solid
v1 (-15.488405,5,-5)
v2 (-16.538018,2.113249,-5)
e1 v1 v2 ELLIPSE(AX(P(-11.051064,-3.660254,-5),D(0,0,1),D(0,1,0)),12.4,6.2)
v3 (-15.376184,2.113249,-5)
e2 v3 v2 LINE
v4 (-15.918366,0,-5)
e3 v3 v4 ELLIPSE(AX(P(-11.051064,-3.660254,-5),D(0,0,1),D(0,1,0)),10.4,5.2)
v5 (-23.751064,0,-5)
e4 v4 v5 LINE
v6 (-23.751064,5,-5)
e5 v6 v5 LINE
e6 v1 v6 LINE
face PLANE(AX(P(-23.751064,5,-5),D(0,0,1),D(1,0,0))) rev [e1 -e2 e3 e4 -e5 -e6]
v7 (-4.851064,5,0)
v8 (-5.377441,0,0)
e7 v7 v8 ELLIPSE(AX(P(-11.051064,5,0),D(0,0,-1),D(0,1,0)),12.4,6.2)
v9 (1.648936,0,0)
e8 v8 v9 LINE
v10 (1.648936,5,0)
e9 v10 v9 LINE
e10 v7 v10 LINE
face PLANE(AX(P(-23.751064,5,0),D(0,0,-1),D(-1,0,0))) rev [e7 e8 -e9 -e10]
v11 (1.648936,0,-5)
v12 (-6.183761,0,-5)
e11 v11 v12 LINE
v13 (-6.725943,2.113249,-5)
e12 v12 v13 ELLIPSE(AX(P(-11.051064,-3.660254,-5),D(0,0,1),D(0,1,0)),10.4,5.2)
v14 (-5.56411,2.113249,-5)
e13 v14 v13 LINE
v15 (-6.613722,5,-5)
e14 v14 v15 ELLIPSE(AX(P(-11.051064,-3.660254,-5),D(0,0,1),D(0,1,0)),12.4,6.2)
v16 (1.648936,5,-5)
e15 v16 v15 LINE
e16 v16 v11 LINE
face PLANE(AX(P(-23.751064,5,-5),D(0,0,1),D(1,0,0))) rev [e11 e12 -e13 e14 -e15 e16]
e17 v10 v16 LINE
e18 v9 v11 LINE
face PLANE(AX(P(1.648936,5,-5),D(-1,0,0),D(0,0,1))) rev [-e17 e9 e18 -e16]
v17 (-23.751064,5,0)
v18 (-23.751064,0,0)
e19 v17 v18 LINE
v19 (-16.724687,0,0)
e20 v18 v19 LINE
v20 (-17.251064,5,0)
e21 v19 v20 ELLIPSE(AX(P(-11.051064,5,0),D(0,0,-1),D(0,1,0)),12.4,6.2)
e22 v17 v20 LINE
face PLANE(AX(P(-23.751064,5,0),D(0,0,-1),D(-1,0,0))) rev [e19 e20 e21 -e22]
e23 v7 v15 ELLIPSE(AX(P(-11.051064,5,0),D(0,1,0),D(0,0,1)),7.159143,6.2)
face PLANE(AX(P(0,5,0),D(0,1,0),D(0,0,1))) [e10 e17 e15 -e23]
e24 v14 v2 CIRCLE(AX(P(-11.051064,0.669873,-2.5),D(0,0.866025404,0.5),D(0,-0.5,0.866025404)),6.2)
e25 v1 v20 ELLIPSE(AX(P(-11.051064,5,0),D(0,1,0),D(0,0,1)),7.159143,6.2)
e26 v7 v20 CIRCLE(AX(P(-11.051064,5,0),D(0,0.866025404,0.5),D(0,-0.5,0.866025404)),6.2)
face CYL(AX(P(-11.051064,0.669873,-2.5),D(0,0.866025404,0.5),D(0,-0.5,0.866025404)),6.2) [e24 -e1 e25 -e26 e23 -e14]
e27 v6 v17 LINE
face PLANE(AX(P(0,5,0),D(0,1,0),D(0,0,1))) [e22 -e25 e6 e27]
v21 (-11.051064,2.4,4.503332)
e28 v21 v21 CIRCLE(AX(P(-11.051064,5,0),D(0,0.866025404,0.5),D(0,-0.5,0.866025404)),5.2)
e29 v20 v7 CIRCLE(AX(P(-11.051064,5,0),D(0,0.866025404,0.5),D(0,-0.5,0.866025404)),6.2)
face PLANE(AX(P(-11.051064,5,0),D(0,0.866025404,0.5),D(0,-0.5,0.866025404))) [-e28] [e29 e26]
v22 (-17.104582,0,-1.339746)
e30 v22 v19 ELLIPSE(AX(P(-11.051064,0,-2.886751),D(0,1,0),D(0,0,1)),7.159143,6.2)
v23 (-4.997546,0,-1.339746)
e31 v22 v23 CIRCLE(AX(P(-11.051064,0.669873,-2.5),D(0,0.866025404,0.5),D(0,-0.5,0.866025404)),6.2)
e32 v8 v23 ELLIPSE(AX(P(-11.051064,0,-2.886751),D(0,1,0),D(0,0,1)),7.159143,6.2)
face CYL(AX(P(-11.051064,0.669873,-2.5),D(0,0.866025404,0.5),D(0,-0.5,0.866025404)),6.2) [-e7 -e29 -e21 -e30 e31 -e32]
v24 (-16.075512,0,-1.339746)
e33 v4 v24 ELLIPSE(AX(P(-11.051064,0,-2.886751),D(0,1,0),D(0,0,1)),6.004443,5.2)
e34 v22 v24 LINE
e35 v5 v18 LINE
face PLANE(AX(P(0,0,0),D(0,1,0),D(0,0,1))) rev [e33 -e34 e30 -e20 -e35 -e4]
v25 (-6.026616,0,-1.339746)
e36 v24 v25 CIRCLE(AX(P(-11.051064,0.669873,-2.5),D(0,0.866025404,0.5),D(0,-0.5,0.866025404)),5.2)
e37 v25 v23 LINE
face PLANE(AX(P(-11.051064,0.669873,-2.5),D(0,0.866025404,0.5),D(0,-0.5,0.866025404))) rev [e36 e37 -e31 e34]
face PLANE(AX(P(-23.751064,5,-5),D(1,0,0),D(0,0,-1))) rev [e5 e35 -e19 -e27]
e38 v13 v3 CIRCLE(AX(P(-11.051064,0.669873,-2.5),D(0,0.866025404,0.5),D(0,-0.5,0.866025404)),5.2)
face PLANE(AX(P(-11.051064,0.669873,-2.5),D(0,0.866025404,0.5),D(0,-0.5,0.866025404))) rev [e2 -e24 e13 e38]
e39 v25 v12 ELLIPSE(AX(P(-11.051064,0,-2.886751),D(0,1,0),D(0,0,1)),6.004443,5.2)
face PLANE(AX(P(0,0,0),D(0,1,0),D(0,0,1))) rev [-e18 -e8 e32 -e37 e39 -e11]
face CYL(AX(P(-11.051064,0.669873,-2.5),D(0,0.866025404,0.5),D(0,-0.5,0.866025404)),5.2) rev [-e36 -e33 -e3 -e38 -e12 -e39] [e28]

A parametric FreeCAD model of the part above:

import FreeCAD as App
import Part
import Sketcher

doc = App.newDocument("Part")
body = doc.addObject("PartDesign::Body", "Body")

# Sketch on XZ plane
sketch1 = body.newObject("Sketcher::SketchObject", "Sketch")
sketch1.AttachmentSupport = (doc.getObject("XZ_Plane"), [""])
sketch1.MapMode = "FlatFace"
sketch1.addGeometry(Part.LineSegment(App.Vector(-24, -5, 0), App.Vector(-24, 0, 0)), False)
sketch1.addGeometry(Part.LineSegment(App.Vector(-24, 0, 0), App.Vector(2, 0, 0)), False)
sketch1.addGeometry(Part.LineSegment(App.Vector(2, 0, 0), App.Vector(2, -5, 0)), False)
sketch1.addGeometry(Part.LineSegment(App.Vector(2, -5, 0), App.Vector(-24, -5, 0)), False)
sketch1.addConstraint(Sketcher.Constraint("Coincident", 0, 2, 1, 1))
sketch1.addConstraint(Sketcher.Constraint("Coincident", 1, 2, 2, 1))
sketch1.addConstraint(Sketcher.Constraint("Coincident", 2, 2, 3, 1))
sketch1.addConstraint(Sketcher.Constraint("Coincident", 3, 2, 0, 1))
sketch1.addConstraint(Sketcher.Constraint("Vertical", 0))
sketch1.addConstraint(Sketcher.Constraint("Horizontal", 1))
sketch1.addConstraint(Sketcher.Constraint("Vertical", 2))
sketch1.addConstraint(Sketcher.Constraint("Horizontal", 3))
sketch1.addConstraint(Sketcher.Constraint("PointOnObject", 0, 2, -1))
sketch1.addConstraint(Sketcher.Constraint("DistanceY", 0, 1, 0, 2, 5.0))
sketch1.addConstraint(Sketcher.Constraint("DistanceX", 1, 1, 1, 2, 25.4))
sketch1.addConstraint(Sketcher.Constraint("DistanceX", 0, 2, -1, 1, 23.751064))
pad1 = body.newObject("PartDesign::Pad", "Pad")
pad1.Profile = sketch1
pad1.Length = 5
pad1.Reversed = True

# Sketch on an angled plane
sketch2 = body.newObject("Sketcher::SketchObject", "Sketch001")
sketch2.Placement = App.Placement(App.Vector(0, 3.75, 2.165064), App.Rotation(App.Vector(1, 0, 0), App.Vector(0, 0.5, -0.866025404), App.Vector(0, 0.866025404, 0.5), "ZXY"))
sketch2.addGeometry(Part.Circle(App.Vector(-11, 3, 0), App.Vector(0, 0, 1), 6), False)
sketch2.addGeometry(Part.Circle(App.Vector(-11, 3, 0), App.Vector(0, 0, 1), 5), False)
sketch2.addConstraint(Sketcher.Constraint("Coincident", 1, 3, 0, 3))
sketch2.addConstraint(Sketcher.Constraint("Diameter", 0, 12.4))
sketch2.addConstraint(Sketcher.Constraint("Diameter", 1, 10.4))
sketch2.addConstraint(Sketcher.Constraint("DistanceY", -1, 1, 0, 3, 2.5))
sketch2.addConstraint(Sketcher.Constraint("DistanceX", 0, 3, -1, 1, 11.051064))
pad2 = body.newObject("PartDesign::Pad", "Pad001")
pad2.Profile = sketch2
pad2.Length = 5
pad2.Reversed = True

# Sketch on an angled plane
sketch3 = body.newObject("Sketcher::SketchObject", "Sketch002")
sketch3.Placement = App.Placement(App.Vector(0, 3.75, 2.165064), App.Rotation(App.Vector(1, 0, 0), App.Vector(0, 0.5, -0.866025404), App.Vector(0, 0.866025404, 0.5), "ZXY"))
sketch3.addGeometry(Part.Circle(App.Vector(-11, 3, 0), App.Vector(0, 0, 1), 5), False)
sketch3.addConstraint(Sketcher.Constraint("Diameter", 0, 10.4))
sketch3.addConstraint(Sketcher.Constraint("DistanceY", -1, 1, 0, 3, 2.5))
sketch3.addConstraint(Sketcher.Constraint("DistanceX", 0, 3, -1, 1, 11.051064))
pocket1 = body.newObject("PartDesign::Pocket", "Pocket")
pocket1.Profile = sketch3
pocket1.Type = "ThroughAll"

doc.recompute()
